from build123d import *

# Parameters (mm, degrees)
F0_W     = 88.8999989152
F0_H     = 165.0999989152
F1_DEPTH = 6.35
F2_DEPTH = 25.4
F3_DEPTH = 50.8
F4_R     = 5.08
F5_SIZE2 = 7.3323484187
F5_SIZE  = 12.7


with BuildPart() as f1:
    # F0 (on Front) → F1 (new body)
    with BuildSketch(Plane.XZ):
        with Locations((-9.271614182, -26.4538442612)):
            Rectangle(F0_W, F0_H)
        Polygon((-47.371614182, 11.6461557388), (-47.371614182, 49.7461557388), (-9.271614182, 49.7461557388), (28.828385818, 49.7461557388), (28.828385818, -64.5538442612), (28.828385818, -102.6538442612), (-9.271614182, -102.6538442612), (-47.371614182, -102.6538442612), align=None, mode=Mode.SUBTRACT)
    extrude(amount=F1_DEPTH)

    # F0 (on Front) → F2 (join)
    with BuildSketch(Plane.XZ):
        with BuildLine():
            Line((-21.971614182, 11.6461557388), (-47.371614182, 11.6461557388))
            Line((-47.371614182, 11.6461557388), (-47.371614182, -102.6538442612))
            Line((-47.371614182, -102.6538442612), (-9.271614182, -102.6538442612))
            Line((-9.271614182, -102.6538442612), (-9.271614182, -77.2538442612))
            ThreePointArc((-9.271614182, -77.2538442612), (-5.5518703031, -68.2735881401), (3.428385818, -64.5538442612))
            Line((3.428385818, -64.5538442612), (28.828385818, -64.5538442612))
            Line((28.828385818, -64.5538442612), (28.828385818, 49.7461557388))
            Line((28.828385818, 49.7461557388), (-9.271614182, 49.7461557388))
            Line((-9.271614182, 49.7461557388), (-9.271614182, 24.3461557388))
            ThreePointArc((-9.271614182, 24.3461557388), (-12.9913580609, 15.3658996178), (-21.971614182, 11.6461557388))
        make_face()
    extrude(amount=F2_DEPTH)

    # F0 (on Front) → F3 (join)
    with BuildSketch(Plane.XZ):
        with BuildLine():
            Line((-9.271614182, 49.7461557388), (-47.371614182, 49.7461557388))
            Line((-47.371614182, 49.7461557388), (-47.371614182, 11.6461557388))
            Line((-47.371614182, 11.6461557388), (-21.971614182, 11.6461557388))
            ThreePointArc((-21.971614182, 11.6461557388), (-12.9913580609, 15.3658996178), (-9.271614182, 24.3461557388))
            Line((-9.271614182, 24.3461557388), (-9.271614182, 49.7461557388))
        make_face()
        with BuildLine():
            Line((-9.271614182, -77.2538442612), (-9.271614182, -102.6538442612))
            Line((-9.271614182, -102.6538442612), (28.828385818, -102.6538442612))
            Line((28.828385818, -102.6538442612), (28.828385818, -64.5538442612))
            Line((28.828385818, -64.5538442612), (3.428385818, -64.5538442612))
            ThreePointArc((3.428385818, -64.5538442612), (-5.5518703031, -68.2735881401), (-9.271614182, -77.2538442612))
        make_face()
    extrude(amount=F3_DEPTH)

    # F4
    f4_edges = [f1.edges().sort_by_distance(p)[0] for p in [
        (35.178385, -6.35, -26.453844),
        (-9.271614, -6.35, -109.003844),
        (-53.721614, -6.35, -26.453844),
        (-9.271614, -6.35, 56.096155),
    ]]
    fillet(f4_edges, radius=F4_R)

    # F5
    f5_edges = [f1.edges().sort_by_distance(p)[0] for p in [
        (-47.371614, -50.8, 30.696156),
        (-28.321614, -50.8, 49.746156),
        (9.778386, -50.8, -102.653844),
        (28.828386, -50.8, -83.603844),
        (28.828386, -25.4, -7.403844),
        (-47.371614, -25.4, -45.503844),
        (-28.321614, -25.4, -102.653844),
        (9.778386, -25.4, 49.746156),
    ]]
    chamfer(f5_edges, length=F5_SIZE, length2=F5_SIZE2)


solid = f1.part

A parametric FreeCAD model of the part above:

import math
import FreeCAD as App
import Part
import Sketcher
from FreeCAD import Vector
Q = App.Units.Quantity


def edges_at(feature, points):
    """Names of the edges that pass closest to the given points."""
    edges = feature.Shape.Edges
    near = lambda p: min(range(len(edges)), key=lambda i: edges[i].distToShape(Part.Vertex(*p))[0])
    return sorted({f"Edge{near(p) + 1}" for p in points})


def add_polygon(sketch, points):
    """Adds a closed chain of lines whose ends are joined by coincident constraints."""
    first, n = sketch.GeometryCount, len(points)
    for a, b in zip(points, points[1:] + points[:1]):
        sketch.addGeometry(Part.LineSegment(App.Vector(*a, 0), App.Vector(*b, 0)), False)
    for i in range(n):
        sketch.addConstraint(Sketcher.Constraint("Coincident", first + i, 2, first + (i + 1) % n, 1))

doc = App.newDocument("Part")
body = doc.addObject("PartDesign::Body", "Body")

# Sketch on XZ plane
sketch1 = body.newObject("Sketcher::SketchObject", "Sketch")
sketch1.AttachmentSupport = (doc.getObject("XZ_Plane"), [""])
sketch1.MapMode = "FlatFace"
add_polygon(sketch1, [(-54, 56), (-54, -109), (35, -109), (35, 56)])  # lines 0-3
add_polygon(sketch1, [(-47, -103), (-47, 50), (29, 50), (29, -103)])  # lines 4-7
sketch1.addConstraint([
    Sketcher.Constraint("Vertical", 0),
    Sketcher.Constraint("Horizontal", 1),
    Sketcher.Constraint("Vertical", 2),
    Sketcher.Constraint("Horizontal", 3),
    Sketcher.Constraint("Vertical", 4),
    Sketcher.Constraint("Horizontal", 5),
    Sketcher.Constraint("Vertical", 6),
    Sketcher.Constraint("Horizontal", 7),
    Sketcher.Constraint("DistanceX", 5, 1, 5, 2, Q("3 in")),
    Sketcher.Constraint("DistanceY", 4, 1, 4, 2, Q("6 in")),
    Sketcher.Constraint("DistanceX", 1, 1, 1, 2, Q("3.5 in")),
    Sketcher.Constraint("DistanceY", 0, 2, 0, 1, Q("6.5 in")),
    Sketcher.Constraint("DistanceX", 3, 2, 4, 2, Q("0.25 in")),
    Sketcher.Constraint("DistanceY", 4, 2, 3, 2, Q("0.25 in")),
    Sketcher.Constraint("DistanceX", 0, 2, -1, 1, Q("53.721614 mm")),
    Sketcher.Constraint("DistanceY", 0, 2, -1, 1, Q("109.003844 mm")),
])
pad1 = body.newObject("PartDesign::Pad", "Pad")
pad1.Profile = sketch1
pad1.Length = Q("0.25 in")

# Sketch on XZ plane
sketch2 = body.newObject("Sketcher::SketchObject", "Sketch001")
sketch2.AttachmentSupport = (doc.getObject("XZ_Plane"), [""])
sketch2.MapMode = "FlatFace"
sketch2.addGeometry([
    Part.LineSegment(Vector(-22, 12, 0), Vector(-47, 12, 0)),  # 0
    Part.LineSegment(Vector(-47, 12, 0), Vector(-47, -103, 0)),  # 1
    Part.LineSegment(Vector(-47, -103, 0), Vector(-9, -103, 0)),  # 2
    Part.LineSegment(Vector(-9, -103, 0), Vector(-9, -77, 0)),  # 3
    Part.ArcOfCircle(Part.Circle(Vector(3, -77, 0), Vector(0, 0, 1), 13), math.radians(90), math.radians(180)),  # 4
    Part.LineSegment(Vector(3, -65, 0), Vector(29, -65, 0)),  # 5
    Part.LineSegment(Vector(29, -65, 0), Vector(29, 50, 0)),  # 6
    Part.LineSegment(Vector(29, 50, 0), Vector(-9, 50, 0)),  # 7
    Part.LineSegment(Vector(-9, 50, 0), Vector(-9, 24, 0)),  # 8
    Part.ArcOfCircle(Part.Circle(Vector(-22, 24, 0), Vector(0, 0, 1), 13), math.radians(-90), math.radians(0)),  # 9
], False)
sketch2.addConstraint([
    Sketcher.Constraint("Coincident", 0, 2, 1, 1),
    Sketcher.Constraint("Coincident", 1, 2, 2, 1),
    Sketcher.Constraint("Coincident", 2, 2, 3, 1),
    Sketcher.Constraint("Tangent", 3, 2, 4, 2),
    Sketcher.Constraint("Tangent", 4, 1, 5, 1),
    Sketcher.Constraint("Coincident", 5, 2, 6, 1),
    Sketcher.Constraint("Coincident", 6, 2, 7, 1),
    Sketcher.Constraint("Coincident", 7, 2, 8, 1),
    Sketcher.Constraint("Tangent", 8, 2, 9, 2),
    Sketcher.Constraint("Tangent", 9, 1, 0, 1),
    Sketcher.Constraint("Horizontal", 0),
    Sketcher.Constraint("Vertical", 1),
    Sketcher.Constraint("Horizontal", 2),
    Sketcher.Constraint("Vertical", 3),
    Sketcher.Constraint("Horizontal", 5),
    Sketcher.Constraint("Vertical", 6),
    Sketcher.Constraint("Horizontal", 7),
    Sketcher.Constraint("Vertical", 8),
    Sketcher.Constraint("Equal", 4, 9),
    Sketcher.Constraint("Vertical", 3, 2, 7, 2),
    Sketcher.Constraint("Equal", 0, 5),
    Sketcher.Constraint("Equal", 5, 3),
    Sketcher.Constraint("Equal", 1, 6),
    Sketcher.Constraint("Radius", 4, Q("0.5 in")),
    Sketcher.Constraint("DistanceX", 0, 2, 0, 1, Q("1 in")),
    Sketcher.Constraint("DistanceY", 1, 2, 1, 1, Q("4.5 in")),
    Sketcher.Constraint("DistanceX", -1, 1, 4, 3, Q("3.428386 mm")),
    Sketcher.Constraint("DistanceY", 4, 3, -1, 1, Q("77.253844 mm")),
])
pad2 = body.newObject("PartDesign::Pad", "Pad001")
pad2.Profile = sketch2
pad2.Length = Q("1 in")

# Sketch on XZ plane
sketch3 = body.newObject("Sketcher::SketchObject", "Sketch002")
sketch3.AttachmentSupport = (doc.getObject("XZ_Plane"), [""])
sketch3.MapMode = "FlatFace"
sketch3.addGeometry([
    Part.LineSegment(Vector(-9, 50, 0), Vector(-47, 50, 0)),  # 0
    Part.LineSegment(Vector(-47, 50, 0), Vector(-47, 12, 0)),  # 1
    Part.LineSegment(Vector(-47, 12, 0), Vector(-22, 12, 0)),  # 2
    Part.ArcOfCircle(Part.Circle(Vector(-22, 24, 0), Vector(0, 0, 1), 13), math.radians(-90), math.radians(0)),  # 3
    Part.LineSegment(Vector(-9, 24, 0), Vector(-9, 50, 0)),  # 4
    Part.LineSegment(Vector(-9, -77, 0), Vector(-9, -103, 0)),  # 5
    Part.LineSegment(Vector(-9, -103, 0), Vector(29, -103, 0)),  # 6
    Part.LineSegment(Vector(29, -103, 0), Vector(29, -65, 0)),  # 7
    Part.LineSegment(Vector(29, -65, 0), Vector(3, -65, 0)),  # 8
    Part.ArcOfCircle(Part.Circle(Vector(3, -77, 0), Vector(0, 0, 1), 13), math.radians(90), math.radians(180)),  # 9
], False)
sketch3.addConstraint([
    Sketcher.Constraint("Coincident", 0, 2, 1, 1),
    Sketcher.Constraint("Coincident", 1, 2, 2, 1),
    Sketcher.Constraint("Tangent", 2, 2, 3, 1),
    Sketcher.Constraint("Tangent", 3, 2, 4, 1),
    Sketcher.Constraint("Coincident", 4, 2, 0, 1),
    Sketcher.Constraint("Coincident", 5, 2, 6, 1),
    Sketcher.Constraint("Coincident", 6, 2, 7, 1),
    Sketcher.Constraint("Coincident", 7, 2, 8, 1),
    Sketcher.Constraint("Tangent", 8, 2, 9, 1),
    Sketcher.Constraint("Tangent", 9, 2, 5, 1),
    Sketcher.Constraint("Horizontal", 0),
    Sketcher.Constraint("Vertical", 1),
    Sketcher.Constraint("Horizontal", 2),
    Sketcher.Constraint("Vertical", 4),
    Sketcher.Constraint("Vertical", 5),
    Sketcher.Constraint("Horizontal", 6),
    Sketcher.Constraint("Vertical", 7),
    Sketcher.Constraint("Horizontal", 8),
    Sketcher.Constraint("Equal", 3, 9),
    Sketcher.Constraint("Vertical", 4, 2, 5, 2),
    Sketcher.Constraint("Equal", 0, 6),
    Sketcher.Constraint("Equal", 6, 1),
    Sketcher.Constraint("Equal", 4, 5),
    Sketcher.Constraint("Radius", 3, Q("0.5 in")),
    Sketcher.Constraint("DistanceX", 2, 1, 2, 2, Q("1 in")),
    Sketcher.Constraint("DistanceY", 9, 3, 3, 3, Q("4 in")),
    Sketcher.Constraint("DistanceX", 3, 3, -1, 1, Q("21.971614 mm")),
    Sketcher.Constraint("DistanceY", -1, 1, 3, 3, Q("24.346156 mm")),
])
pad3 = body.newObject("PartDesign::Pad", "Pad002")
pad3.Profile = sketch3
pad3.Length = Q("2 in")
doc.recompute()

fillet = body.newObject("PartDesign::Fillet", "Fillet")
fillet.Base = (pad3, edges_at(pad3, [
    (35.178, -6.35, -26.454),
    (-9.272, -6.35, -109.004),
    (-53.722, -6.35, -26.454),
    (-9.272, -6.35, 56.096),
]))
fillet.Radius = Q("0.2 in")
doc.recompute()

chamfer = body.newObject("PartDesign::Chamfer", "Chamfer")
chamfer.Base = (fillet, edges_at(fillet, [
    (-47.372, -50.8, 30.696),
    (-28.322, -50.8, 49.746),
    (9.778, -50.8, -102.654),
    (28.828, -50.8, -83.604),
    (28.828, -25.4, -7.404),
    (-47.372, -25.4, -45.504),
    (-28.322, -25.4, -102.654),
    (9.778, -25.4, 49.746),
]))
chamfer.ChamferType = "Two distances"
chamfer.Size = Q("0.5 in")
chamfer.Size2 = 7.332348

doc.recompute()
